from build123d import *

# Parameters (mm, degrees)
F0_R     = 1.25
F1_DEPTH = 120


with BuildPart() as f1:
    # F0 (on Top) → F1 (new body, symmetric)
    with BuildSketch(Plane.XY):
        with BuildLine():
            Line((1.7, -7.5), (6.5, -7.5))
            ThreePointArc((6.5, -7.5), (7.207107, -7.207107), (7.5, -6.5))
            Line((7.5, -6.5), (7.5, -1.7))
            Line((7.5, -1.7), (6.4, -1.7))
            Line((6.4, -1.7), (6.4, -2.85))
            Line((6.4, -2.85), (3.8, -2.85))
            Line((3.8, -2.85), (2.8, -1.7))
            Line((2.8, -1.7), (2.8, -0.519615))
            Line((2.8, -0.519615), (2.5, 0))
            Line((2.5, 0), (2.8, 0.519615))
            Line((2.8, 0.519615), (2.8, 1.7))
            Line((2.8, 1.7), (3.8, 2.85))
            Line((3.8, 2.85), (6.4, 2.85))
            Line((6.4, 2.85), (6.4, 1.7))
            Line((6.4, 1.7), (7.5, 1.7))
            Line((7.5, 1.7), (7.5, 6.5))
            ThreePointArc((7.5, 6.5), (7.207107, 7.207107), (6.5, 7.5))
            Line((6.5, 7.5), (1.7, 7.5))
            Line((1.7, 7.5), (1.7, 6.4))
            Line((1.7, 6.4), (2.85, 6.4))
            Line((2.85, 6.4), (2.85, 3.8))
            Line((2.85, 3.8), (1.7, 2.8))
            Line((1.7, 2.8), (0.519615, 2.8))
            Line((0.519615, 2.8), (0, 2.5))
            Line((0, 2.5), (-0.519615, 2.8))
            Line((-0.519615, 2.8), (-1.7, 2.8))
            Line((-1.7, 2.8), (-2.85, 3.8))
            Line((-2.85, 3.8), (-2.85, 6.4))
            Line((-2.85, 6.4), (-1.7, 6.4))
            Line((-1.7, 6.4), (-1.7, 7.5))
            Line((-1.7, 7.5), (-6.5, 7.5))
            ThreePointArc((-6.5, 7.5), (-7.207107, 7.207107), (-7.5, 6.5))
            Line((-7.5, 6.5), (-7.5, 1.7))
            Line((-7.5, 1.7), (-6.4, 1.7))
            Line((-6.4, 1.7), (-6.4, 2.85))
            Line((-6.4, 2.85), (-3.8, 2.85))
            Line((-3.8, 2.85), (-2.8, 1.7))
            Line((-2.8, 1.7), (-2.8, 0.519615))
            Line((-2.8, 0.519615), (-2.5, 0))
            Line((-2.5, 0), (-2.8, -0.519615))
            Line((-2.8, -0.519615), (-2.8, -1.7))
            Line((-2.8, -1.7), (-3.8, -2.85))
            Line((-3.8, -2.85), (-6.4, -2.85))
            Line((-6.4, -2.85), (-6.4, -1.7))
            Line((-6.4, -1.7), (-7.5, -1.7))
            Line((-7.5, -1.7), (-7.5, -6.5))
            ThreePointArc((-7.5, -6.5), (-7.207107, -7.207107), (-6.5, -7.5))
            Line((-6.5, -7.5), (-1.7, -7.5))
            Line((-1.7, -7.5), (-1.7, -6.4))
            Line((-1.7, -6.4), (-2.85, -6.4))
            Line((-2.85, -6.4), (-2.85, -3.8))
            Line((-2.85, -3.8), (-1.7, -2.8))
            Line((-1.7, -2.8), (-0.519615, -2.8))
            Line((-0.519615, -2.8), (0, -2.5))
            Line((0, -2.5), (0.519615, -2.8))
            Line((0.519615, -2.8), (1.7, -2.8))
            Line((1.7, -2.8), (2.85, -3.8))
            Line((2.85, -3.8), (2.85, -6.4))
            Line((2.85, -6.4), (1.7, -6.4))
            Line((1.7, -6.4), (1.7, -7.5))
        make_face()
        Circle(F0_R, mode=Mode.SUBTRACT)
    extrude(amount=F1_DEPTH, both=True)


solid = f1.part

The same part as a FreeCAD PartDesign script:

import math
import FreeCAD as App
import Part
import Sketcher
from FreeCAD import Vector
Q = App.Units.Quantity

doc = App.newDocument("Part")
body = doc.addObject("PartDesign::Body", "Body")

sketch1 = body.newObject("Sketcher::SketchObject", "Sketch")
sketch1.AttachmentSupport = (doc.getObject("XY_Plane"), [""])
sketch1.MapMode = "FlatFace"
sketch1.addGeometry([
    Part.LineSegment(Vector(1.7, -7.5, 0), Vector(6.5, -7.5, 0)),
    Part.ArcOfCircle(Part.Circle(Vector(6.500001, -6.500001, 0), Vector(0, 0, 1), 0.999999), math.radians(-90.000043), math.radians(0.000043)),
    Part.LineSegment(Vector(7.5, -6.5, 0), Vector(7.5, -1.7, 0)),
    Part.LineSegment(Vector(7.5, -1.7, 0), Vector(6.4, -1.7, 0)),
    Part.LineSegment(Vector(6.4, -1.7, 0), Vector(6.4, -2.85, 0)),
    Part.LineSegment(Vector(6.4, -2.85, 0), Vector(3.8, -2.85, 0)),
    Part.LineSegment(Vector(3.8, -2.85, 0), Vector(2.8, -1.7, 0)),
    Part.LineSegment(Vector(2.8, -1.7, 0), Vector(2.8, -0.519615, 0)),
    Part.LineSegment(Vector(2.8, -0.519615, 0), Vector(2.5, 0, 0)),
    Part.LineSegment(Vector(2.5, 0, 0), Vector(2.8, 0.519615, 0)),
    Part.LineSegment(Vector(2.8, 0.519615, 0), Vector(2.8, 1.7, 0)),
    Part.LineSegment(Vector(2.8, 1.7, 0), Vector(3.8, 2.85, 0)),
    Part.LineSegment(Vector(3.8, 2.85, 0), Vector(6.4, 2.85, 0)),
    Part.LineSegment(Vector(6.4, 2.85, 0), Vector(6.4, 1.7, 0)),
    Part.LineSegment(Vector(6.4, 1.7, 0), Vector(7.5, 1.7, 0)),
    Part.LineSegment(Vector(7.5, 1.7, 0), Vector(7.5, 6.5, 0)),
    Part.ArcOfCircle(Part.Circle(Vector(6.500001, 6.500001, 0), Vector(0, 0, 1), 0.999999), math.radians(-0.000043), math.radians(90.000043)),
    Part.LineSegment(Vector(6.5, 7.5, 0), Vector(1.7, 7.5, 0)),
    Part.LineSegment(Vector(1.7, 7.5, 0), Vector(1.7, 6.4, 0)),
    Part.LineSegment(Vector(1.7, 6.4, 0), Vector(2.85, 6.4, 0)),
    Part.LineSegment(Vector(2.85, 6.4, 0), Vector(2.85, 3.8, 0)),
    Part.LineSegment(Vector(2.85, 3.8, 0), Vector(1.7, 2.8, 0)),
    Part.LineSegment(Vector(1.7, 2.8, 0), Vector(0.519615, 2.8, 0)),
    Part.LineSegment(Vector(0.519615, 2.8, 0), Vector(0, 2.5, 0)),
    Part.LineSegment(Vector(0, 2.5, 0), Vector(-0.519615, 2.8, 0)),
    Part.LineSegment(Vector(-0.519615, 2.8, 0), Vector(-1.7, 2.8, 0)),
    Part.LineSegment(Vector(-1.7, 2.8, 0), Vector(-2.85, 3.8, 0)),
    Part.LineSegment(Vector(-2.85, 3.8, 0), Vector(-2.85, 6.4, 0)),
    Part.LineSegment(Vector(-2.85, 6.4, 0), Vector(-1.7, 6.4, 0)),
    Part.LineSegment(Vector(-1.7, 6.4, 0), Vector(-1.7, 7.5, 0)),
    Part.LineSegment(Vector(-1.7, 7.5, 0), Vector(-6.5, 7.5, 0)),
    Part.ArcOfCircle(Part.Circle(Vector(-6.500001, 6.500001, 0), Vector(0, 0, 1), 0.999999), math.radians(89.999957), math.radians(180.000043)),
    Part.LineSegment(Vector(-7.5, 6.5, 0), Vector(-7.5, 1.7, 0)),
    Part.LineSegment(Vector(-7.5, 1.7, 0), Vector(-6.4, 1.7, 0)),
    Part.LineSegment(Vector(-6.4, 1.7, 0), Vector(-6.4, 2.85, 0)),
    Part.LineSegment(Vector(-6.4, 2.85, 0), Vector(-3.8, 2.85, 0)),
    Part.LineSegment(Vector(-3.8, 2.85, 0), Vector(-2.8, 1.7, 0)),
    Part.LineSegment(Vector(-2.8, 1.7, 0), Vector(-2.8, 0.519615, 0)),
    Part.LineSegment(Vector(-2.8, 0.519615, 0), Vector(-2.5, 0, 0)),
    Part.LineSegment(Vector(-2.5, 0, 0), Vector(-2.8, -0.519615, 0)),
    Part.LineSegment(Vector(-2.8, -0.519615, 0), Vector(-2.8, -1.7, 0)),
    Part.LineSegment(Vector(-2.8, -1.7, 0), Vector(-3.8, -2.85, 0)),
    Part.LineSegment(Vector(-3.8, -2.85, 0), Vector(-6.4, -2.85, 0)),
    Part.LineSegment(Vector(-6.4, -2.85, 0), Vector(-6.4, -1.7, 0)),
    Part.LineSegment(Vector(-6.4, -1.7, 0), Vector(-7.5, -1.7, 0)),
    Part.LineSegment(Vector(-7.5, -1.7, 0), Vector(-7.5, -6.5, 0)),
    Part.ArcOfCircle(Part.Circle(Vector(-6.500001, -6.500001, 0), Vector(0, 0, 1), 0.999999), math.radians(179.999957), math.radians(270.000043)),
    Part.LineSegment(Vector(-6.5, -7.5, 0), Vector(-1.7, -7.5, 0)),
    Part.LineSegment(Vector(-1.7, -7.5, 0), Vector(-1.7, -6.4, 0)),
    Part.LineSegment(Vector(-1.7, -6.4, 0), Vector(-2.85, -6.4, 0)),
    Part.LineSegment(Vector(-2.85, -6.4, 0), Vector(-2.85, -3.8, 0)),
    Part.LineSegment(Vector(-2.85, -3.8, 0), Vector(-1.7, -2.8, 0)),
    Part.LineSegment(Vector(-1.7, -2.8, 0), Vector(-0.519615, -2.8, 0)),
    Part.LineSegment(Vector(-0.519615, -2.8, 0), Vector(0, -2.5, 0)),
    Part.LineSegment(Vector(0, -2.5, 0), Vector(0.519615, -2.8, 0)),
    Part.LineSegment(Vector(0.519615, -2.8, 0), Vector(1.7, -2.8, 0)),
    Part.LineSegment(Vector(1.7, -2.8, 0), Vector(2.85, -3.8, 0)),
    Part.LineSegment(Vector(2.85, -3.8, 0), Vector(2.85, -6.4, 0)),
    Part.LineSegment(Vector(2.85, -6.4, 0), Vector(1.7, -6.4, 0)),
    Part.LineSegment(Vector(1.7, -6.4, 0), Vector(1.7, -7.5, 0)),
    Part.Circle(Vector(0, 0, 0), Vector(0, 0, 1), 1.25),
], False)
sketch1.addConstraint([
    Sketcher.Constraint("Tangent", 0, 2, 1, 1),
    Sketcher.Constraint("Tangent", 1, 2, 2, 1),
    Sketcher.Constraint("Coincident", 2, 2, 3, 1),
    Sketcher.Constraint("Coincident", 3, 2, 4, 1),
    Sketcher.Constraint("Coincident", 4, 2, 5, 1),
    Sketcher.Constraint("Coincident", 5, 2, 6, 1),
    Sketcher.Constraint("Coincident", 6, 2, 7, 1),
    Sketcher.Constraint("Coincident", 7, 2, 8, 1),
    Sketcher.Constraint("Coincident", 8, 2, 9, 1),
    Sketcher.Constraint("Coincident", 9, 2, 10, 1),
    Sketcher.Constraint("Coincident", 10, 2, 11, 1),
    Sketcher.Constraint("Coincident", 11, 2, 12, 1),
    Sketcher.Constraint("Coincident", 12, 2, 13, 1),
    Sketcher.Constraint("Coincident", 13, 2, 14, 1),
    Sketcher.Constraint("Coincident", 14, 2, 15, 1),
    Sketcher.Constraint("Tangent", 15, 2, 16, 1),
    Sketcher.Constraint("Tangent", 16, 2, 17, 1),
    Sketcher.Constraint("Coincident", 17, 2, 18, 1),
    Sketcher.Constraint("Coincident", 18, 2, 19, 1),
    Sketcher.Constraint("Coincident", 19, 2, 20, 1),
    Sketcher.Constraint("Coincident", 20, 2, 21, 1),
    Sketcher.Constraint("Coincident", 21, 2, 22, 1),
    Sketcher.Constraint("Coincident", 22, 2, 23, 1),
    Sketcher.Constraint("Coincident", 23, 2, 24, 1),
    Sketcher.Constraint("Coincident", 24, 2, 25, 1),
    Sketcher.Constraint("Coincident", 25, 2, 26, 1),
    Sketcher.Constraint("Coincident", 26, 2, 27, 1),
    Sketcher.Constraint("Coincident", 27, 2, 28, 1),
    Sketcher.Constraint("Coincident", 28, 2, 29, 1),
    Sketcher.Constraint("Coincident", 29, 2, 30, 1),
    Sketcher.Constraint("Tangent", 30, 2, 31, 1),
    Sketcher.Constraint("Tangent", 31, 2, 32, 1),
    Sketcher.Constraint("Coincident", 32, 2, 33, 1),
    Sketcher.Constraint("Coincident", 33, 2, 34, 1),
    Sketcher.Constraint("Coincident", 34, 2, 35, 1),
    Sketcher.Constraint("Coincident", 35, 2, 36, 1),
    Sketcher.Constraint("Coincident", 36, 2, 37, 1),
    Sketcher.Constraint("Coincident", 37, 2, 38, 1),
    Sketcher.Constraint("Coincident", 38, 2, 39, 1),
    Sketcher.Constraint("Coincident", 39, 2, 40, 1),
    Sketcher.Constraint("Coincident", 40, 2, 41, 1),
    Sketcher.Constraint("Coincident", 41, 2, 42, 1),
    Sketcher.Constraint("Coincident", 42, 2, 43, 1),
    Sketcher.Constraint("Coincident", 43, 2, 44, 1),
    Sketcher.Constraint("Coincident", 44, 2, 45, 1),
    Sketcher.Constraint("Tangent", 45, 2, 46, 1),
    Sketcher.Constraint("Tangent", 46, 2, 47, 1),
    Sketcher.Constraint("Coincident", 47, 2, 48, 1),
    Sketcher.Constraint("Coincident", 48, 2, 49, 1),
    Sketcher.Constraint("Coincident", 49, 2, 50, 1),
    Sketcher.Constraint("Coincident", 50, 2, 51, 1),
    Sketcher.Constraint("Coincident", 51, 2, 52, 1),
    Sketcher.Constraint("Coincident", 52, 2, 53, 1),
    Sketcher.Constraint("Coincident", 53, 2, 54, 1),
    Sketcher.Constraint("Coincident", 54, 2, 55, 1),
    Sketcher.Constraint("Coincident", 55, 2, 56, 1),
    Sketcher.Constraint("Coincident", 56, 2, 57, 1),
    Sketcher.Constraint("Coincident", 57, 2, 58, 1),
    Sketcher.Constraint("Coincident", 58, 2, 59, 1),
    Sketcher.Constraint("Coincident", 59, 2, 0, 1),
    Sketcher.Constraint("Horizontal", 0),
    Sketcher.Constraint("Vertical", 2),
    Sketcher.Constraint("Horizontal", 3),
    Sketcher.Constraint("Vertical", 4),
    Sketcher.Constraint("Horizontal", 5),
    Sketcher.Constraint("Vertical", 7),
    Sketcher.Constraint("Vertical", 10),
    Sketcher.Constraint("Horizontal", 12),
    Sketcher.Constraint("Vertical", 13),
    Sketcher.Constraint("Horizontal", 14),
    Sketcher.Constraint("Vertical", 15),
    Sketcher.Constraint("Horizontal", 17),
    Sketcher.Constraint("Vertical", 18),
    Sketcher.Constraint("Horizontal", 19),
    Sketcher.Constraint("Vertical", 20),
    Sketcher.Constraint("Horizontal", 22),
    Sketcher.Constraint("Horizontal", 25),
    Sketcher.Constraint("Vertical", 27),
    Sketcher.Constraint("Horizontal", 28),
    Sketcher.Constraint("Vertical", 29),
    Sketcher.Constraint("Horizontal", 30),
    Sketcher.Constraint("Vertical", 32),
    Sketcher.Constraint("Horizontal", 33),
    Sketcher.Constraint("Vertical", 34),
    Sketcher.Constraint("Horizontal", 35),
    Sketcher.Constraint("Vertical", 37),
    Sketcher.Constraint("Vertical", 40),
    Sketcher.Constraint("Horizontal", 42),
    Sketcher.Constraint("Vertical", 43),
    Sketcher.Constraint("Horizontal", 44),
    Sketcher.Constraint("Vertical", 45),
    Sketcher.Constraint("Horizontal", 47),
    Sketcher.Constraint("Vertical", 48),
    Sketcher.Constraint("Horizontal", 49),
    Sketcher.Constraint("Vertical", 50),
    Sketcher.Constraint("Horizontal", 52),
    Sketcher.Constraint("Horizontal", 55),
    Sketcher.Constraint("Vertical", 57),
    Sketcher.Constraint("Horizontal", 58),
    Sketcher.Constraint("Vertical", 59),
    Sketcher.Constraint("Coincident", 60, 3, -1, 1),
    Sketcher.Constraint("Equal", 1, 16),
    Sketcher.Constraint("Equal", 16, 31),
    Sketcher.Constraint("Equal", 31, 46),
    Sketcher.Constraint("Symmetric", 1, 3, 31, 3, -1, 1),
    Sketcher.Constraint("Symmetric", 16, 3, 46, 3, -1, 1),
    Sketcher.Constraint("Symmetric", 3, 2, 33, 2, -1, 1),
    Sketcher.Constraint("Symmetric", 5, 2, 35, 2, -1, 1),
    Sketcher.Constraint("Symmetric", 6, 2, 36, 2, -1, 1),
    Sketcher.Constraint("Symmetric", 8, 2, 38, 2, -1, 1),
    Sketcher.Constraint("Symmetric", 9, 2, 39, 2, -1, 1),
    Sketcher.Constraint("Symmetric", 11, 2, 41, 2, -1, 1),
    Sketcher.Constraint("Symmetric", 13, 2, 43, 2, -1, 1),
    Sketcher.Constraint("Symmetric", 18, 2, 48, 2, -1, 1),
    Sketcher.Constraint("Symmetric", 20, 2, 50, 2, -1, 1),
    Sketcher.Constraint("Symmetric", 21, 2, 51, 2, -1, 1),
    Sketcher.Constraint("Symmetric", 23, 2, 53, 2, -1, 1),
    Sketcher.Constraint("Symmetric", 24, 2, 54, 2, -1, 1),
    Sketcher.Constraint("Symmetric", 26, 2, 56, 2, -1, 1),
    Sketcher.Constraint("Symmetric", 28, 2, 58, 2, -1, 1),
    Sketcher.Constraint("Symmetric", 16, 3, 31, 3, -2),
    Sketcher.Constraint("Symmetric", 22, 2, 24, 2, -2),
    Sketcher.Constraint("Symmetric", 20, 2, 26, 2, -2),
    Sketcher.Constraint("Symmetric", 18, 2, 28, 2, -2),
    Sketcher.Constraint("Symmetric", 13, 2, 33, 2, -2),
    Sketcher.Constraint("Symmetric", 11, 2, 35, 2, -2),
    Sketcher.Constraint("Symmetric", 10, 2, 36, 2, -2),
    Sketcher.Constraint("PointOnObject", 8, 2, -1),
    Sketcher.Constraint("PointOnObject", 23, 2, -2),
    Sketcher.Constraint("Perpendicular", 6, 21),
    Sketcher.Constraint("Perpendicular", 8, 23),
    Sketcher.Constraint("Perpendicular", 9, 24),
    Sketcher.Constraint("Perpendicular", 11, 26),
    Sketcher.Constraint("Perpendicular", 23, 38),
    Sketcher.Constraint("Perpendicular", 26, 41),
    Sketcher.Constraint("Perpendicular", 38, 53),
    Sketcher.Constraint("Perpendicular", 41, 56),
    Sketcher.Constraint("Horizontal", 3, 2, 6, 2),
    Sketcher.Constraint("Vertical", 18, 2, 21, 2),
    Sketcher.Constraint("Equal", 47, 2),
    Sketcher.Constraint("Equal", 58, 4),
    Sketcher.Constraint("Equal", 55, 7),
    Sketcher.Constraint("Equal", 44, 18),
    Sketcher.Constraint("Equal", 42, 20),
    Sketcher.Constraint("Equal", 9, 23),
    Sketcher.Constraint("Radius", 1, 0.999999),
    Sketcher.Constraint("Diameter", 60, 2.5),
    Sketcher.Constraint("Angle", 8, Q("120.000012 deg")),
    Sketcher.Constraint("DistanceX", 0, 1, 0, 2, 4.8),
    Sketcher.Constraint("DistanceX", 3, 2, 3, 1, 1.1),
    Sketcher.Constraint("DistanceX", 5, 2, 5, 1, 2.6),
    Sketcher.Constraint("Distance", 8, 0.6),
    Sketcher.Constraint("DistanceX", 19, 1, 19, 2, 1.15),
    Sketcher.Constraint("DistanceX", -1, 1, 1, 3, 6.500001),
    Sketcher.Constraint("DistanceX", -1, 1, 6, 2, 2.8),
])
pad1 = body.newObject("PartDesign::Pad", "Pad")
pad1.Profile = sketch1
pad1.Length = 240
pad1.Midplane = True

doc.recompute()
